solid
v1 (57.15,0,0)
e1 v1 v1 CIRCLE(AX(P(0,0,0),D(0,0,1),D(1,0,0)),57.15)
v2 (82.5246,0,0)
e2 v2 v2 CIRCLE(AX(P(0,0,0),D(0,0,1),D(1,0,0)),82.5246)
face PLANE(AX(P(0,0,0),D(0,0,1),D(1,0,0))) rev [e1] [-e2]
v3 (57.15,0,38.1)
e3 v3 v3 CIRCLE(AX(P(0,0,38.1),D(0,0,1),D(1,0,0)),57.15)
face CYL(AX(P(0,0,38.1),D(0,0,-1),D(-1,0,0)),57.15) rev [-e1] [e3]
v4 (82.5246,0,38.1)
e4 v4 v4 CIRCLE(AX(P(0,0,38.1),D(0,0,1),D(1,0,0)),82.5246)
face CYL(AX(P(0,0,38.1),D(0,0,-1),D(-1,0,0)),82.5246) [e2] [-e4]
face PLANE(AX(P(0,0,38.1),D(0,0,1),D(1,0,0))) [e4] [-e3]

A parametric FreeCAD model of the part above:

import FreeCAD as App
import Part
import Sketcher
from FreeCAD import Vector
Q = App.Units.Quantity

doc = App.newDocument("Part")
body = doc.addObject("PartDesign::Body", "Body")

sketch1 = doc.addObject("Sketcher::SketchObject", "Sketch")
body.addObject(sketch1)
sketch1.AttachmentSupport = (doc.XY_Plane, [""])
sketch1.MapMode = "FlatFace"
sketch1.addGeometry(Part.Circle(Vector(0, 0, 0), Vector(0, 0, 1), 83), False)
sketch1.addConstraint([
    Sketcher.Constraint("Coincident", 0, 3, -1, 1),
    Sketcher.Constraint("Diameter", 0, Q("6.498 in")),
])
pad1 = doc.addObject("PartDesign::Pad", "Pad")
body.addObject(pad1)
pad1.Profile = sketch1
pad1.Length = Q("1.5 in")

sketch2 = doc.addObject("Sketcher::SketchObject", "Sketch001")
body.addObject(sketch2)
sketch2.AttachmentSupport = (doc.XY_Plane, [""])
sketch2.MapMode = "FlatFace"
sketch2.addGeometry(Part.Circle(Vector(0, 0, 0), Vector(0, 0, 1), 57), False)
sketch2.addConstraint([
    Sketcher.Constraint("Coincident", 0, 3, -1, 1),
    Sketcher.Constraint("Diameter", 0, Q("4.5 in")),
])
pocket1 = doc.addObject("PartDesign::Pocket", "Pocket")
body.addObject(pocket1)
pocket1.Profile = sketch2
pocket1.Type = "ThroughAll"
pocket1.Reversed = True

doc.recompute()
